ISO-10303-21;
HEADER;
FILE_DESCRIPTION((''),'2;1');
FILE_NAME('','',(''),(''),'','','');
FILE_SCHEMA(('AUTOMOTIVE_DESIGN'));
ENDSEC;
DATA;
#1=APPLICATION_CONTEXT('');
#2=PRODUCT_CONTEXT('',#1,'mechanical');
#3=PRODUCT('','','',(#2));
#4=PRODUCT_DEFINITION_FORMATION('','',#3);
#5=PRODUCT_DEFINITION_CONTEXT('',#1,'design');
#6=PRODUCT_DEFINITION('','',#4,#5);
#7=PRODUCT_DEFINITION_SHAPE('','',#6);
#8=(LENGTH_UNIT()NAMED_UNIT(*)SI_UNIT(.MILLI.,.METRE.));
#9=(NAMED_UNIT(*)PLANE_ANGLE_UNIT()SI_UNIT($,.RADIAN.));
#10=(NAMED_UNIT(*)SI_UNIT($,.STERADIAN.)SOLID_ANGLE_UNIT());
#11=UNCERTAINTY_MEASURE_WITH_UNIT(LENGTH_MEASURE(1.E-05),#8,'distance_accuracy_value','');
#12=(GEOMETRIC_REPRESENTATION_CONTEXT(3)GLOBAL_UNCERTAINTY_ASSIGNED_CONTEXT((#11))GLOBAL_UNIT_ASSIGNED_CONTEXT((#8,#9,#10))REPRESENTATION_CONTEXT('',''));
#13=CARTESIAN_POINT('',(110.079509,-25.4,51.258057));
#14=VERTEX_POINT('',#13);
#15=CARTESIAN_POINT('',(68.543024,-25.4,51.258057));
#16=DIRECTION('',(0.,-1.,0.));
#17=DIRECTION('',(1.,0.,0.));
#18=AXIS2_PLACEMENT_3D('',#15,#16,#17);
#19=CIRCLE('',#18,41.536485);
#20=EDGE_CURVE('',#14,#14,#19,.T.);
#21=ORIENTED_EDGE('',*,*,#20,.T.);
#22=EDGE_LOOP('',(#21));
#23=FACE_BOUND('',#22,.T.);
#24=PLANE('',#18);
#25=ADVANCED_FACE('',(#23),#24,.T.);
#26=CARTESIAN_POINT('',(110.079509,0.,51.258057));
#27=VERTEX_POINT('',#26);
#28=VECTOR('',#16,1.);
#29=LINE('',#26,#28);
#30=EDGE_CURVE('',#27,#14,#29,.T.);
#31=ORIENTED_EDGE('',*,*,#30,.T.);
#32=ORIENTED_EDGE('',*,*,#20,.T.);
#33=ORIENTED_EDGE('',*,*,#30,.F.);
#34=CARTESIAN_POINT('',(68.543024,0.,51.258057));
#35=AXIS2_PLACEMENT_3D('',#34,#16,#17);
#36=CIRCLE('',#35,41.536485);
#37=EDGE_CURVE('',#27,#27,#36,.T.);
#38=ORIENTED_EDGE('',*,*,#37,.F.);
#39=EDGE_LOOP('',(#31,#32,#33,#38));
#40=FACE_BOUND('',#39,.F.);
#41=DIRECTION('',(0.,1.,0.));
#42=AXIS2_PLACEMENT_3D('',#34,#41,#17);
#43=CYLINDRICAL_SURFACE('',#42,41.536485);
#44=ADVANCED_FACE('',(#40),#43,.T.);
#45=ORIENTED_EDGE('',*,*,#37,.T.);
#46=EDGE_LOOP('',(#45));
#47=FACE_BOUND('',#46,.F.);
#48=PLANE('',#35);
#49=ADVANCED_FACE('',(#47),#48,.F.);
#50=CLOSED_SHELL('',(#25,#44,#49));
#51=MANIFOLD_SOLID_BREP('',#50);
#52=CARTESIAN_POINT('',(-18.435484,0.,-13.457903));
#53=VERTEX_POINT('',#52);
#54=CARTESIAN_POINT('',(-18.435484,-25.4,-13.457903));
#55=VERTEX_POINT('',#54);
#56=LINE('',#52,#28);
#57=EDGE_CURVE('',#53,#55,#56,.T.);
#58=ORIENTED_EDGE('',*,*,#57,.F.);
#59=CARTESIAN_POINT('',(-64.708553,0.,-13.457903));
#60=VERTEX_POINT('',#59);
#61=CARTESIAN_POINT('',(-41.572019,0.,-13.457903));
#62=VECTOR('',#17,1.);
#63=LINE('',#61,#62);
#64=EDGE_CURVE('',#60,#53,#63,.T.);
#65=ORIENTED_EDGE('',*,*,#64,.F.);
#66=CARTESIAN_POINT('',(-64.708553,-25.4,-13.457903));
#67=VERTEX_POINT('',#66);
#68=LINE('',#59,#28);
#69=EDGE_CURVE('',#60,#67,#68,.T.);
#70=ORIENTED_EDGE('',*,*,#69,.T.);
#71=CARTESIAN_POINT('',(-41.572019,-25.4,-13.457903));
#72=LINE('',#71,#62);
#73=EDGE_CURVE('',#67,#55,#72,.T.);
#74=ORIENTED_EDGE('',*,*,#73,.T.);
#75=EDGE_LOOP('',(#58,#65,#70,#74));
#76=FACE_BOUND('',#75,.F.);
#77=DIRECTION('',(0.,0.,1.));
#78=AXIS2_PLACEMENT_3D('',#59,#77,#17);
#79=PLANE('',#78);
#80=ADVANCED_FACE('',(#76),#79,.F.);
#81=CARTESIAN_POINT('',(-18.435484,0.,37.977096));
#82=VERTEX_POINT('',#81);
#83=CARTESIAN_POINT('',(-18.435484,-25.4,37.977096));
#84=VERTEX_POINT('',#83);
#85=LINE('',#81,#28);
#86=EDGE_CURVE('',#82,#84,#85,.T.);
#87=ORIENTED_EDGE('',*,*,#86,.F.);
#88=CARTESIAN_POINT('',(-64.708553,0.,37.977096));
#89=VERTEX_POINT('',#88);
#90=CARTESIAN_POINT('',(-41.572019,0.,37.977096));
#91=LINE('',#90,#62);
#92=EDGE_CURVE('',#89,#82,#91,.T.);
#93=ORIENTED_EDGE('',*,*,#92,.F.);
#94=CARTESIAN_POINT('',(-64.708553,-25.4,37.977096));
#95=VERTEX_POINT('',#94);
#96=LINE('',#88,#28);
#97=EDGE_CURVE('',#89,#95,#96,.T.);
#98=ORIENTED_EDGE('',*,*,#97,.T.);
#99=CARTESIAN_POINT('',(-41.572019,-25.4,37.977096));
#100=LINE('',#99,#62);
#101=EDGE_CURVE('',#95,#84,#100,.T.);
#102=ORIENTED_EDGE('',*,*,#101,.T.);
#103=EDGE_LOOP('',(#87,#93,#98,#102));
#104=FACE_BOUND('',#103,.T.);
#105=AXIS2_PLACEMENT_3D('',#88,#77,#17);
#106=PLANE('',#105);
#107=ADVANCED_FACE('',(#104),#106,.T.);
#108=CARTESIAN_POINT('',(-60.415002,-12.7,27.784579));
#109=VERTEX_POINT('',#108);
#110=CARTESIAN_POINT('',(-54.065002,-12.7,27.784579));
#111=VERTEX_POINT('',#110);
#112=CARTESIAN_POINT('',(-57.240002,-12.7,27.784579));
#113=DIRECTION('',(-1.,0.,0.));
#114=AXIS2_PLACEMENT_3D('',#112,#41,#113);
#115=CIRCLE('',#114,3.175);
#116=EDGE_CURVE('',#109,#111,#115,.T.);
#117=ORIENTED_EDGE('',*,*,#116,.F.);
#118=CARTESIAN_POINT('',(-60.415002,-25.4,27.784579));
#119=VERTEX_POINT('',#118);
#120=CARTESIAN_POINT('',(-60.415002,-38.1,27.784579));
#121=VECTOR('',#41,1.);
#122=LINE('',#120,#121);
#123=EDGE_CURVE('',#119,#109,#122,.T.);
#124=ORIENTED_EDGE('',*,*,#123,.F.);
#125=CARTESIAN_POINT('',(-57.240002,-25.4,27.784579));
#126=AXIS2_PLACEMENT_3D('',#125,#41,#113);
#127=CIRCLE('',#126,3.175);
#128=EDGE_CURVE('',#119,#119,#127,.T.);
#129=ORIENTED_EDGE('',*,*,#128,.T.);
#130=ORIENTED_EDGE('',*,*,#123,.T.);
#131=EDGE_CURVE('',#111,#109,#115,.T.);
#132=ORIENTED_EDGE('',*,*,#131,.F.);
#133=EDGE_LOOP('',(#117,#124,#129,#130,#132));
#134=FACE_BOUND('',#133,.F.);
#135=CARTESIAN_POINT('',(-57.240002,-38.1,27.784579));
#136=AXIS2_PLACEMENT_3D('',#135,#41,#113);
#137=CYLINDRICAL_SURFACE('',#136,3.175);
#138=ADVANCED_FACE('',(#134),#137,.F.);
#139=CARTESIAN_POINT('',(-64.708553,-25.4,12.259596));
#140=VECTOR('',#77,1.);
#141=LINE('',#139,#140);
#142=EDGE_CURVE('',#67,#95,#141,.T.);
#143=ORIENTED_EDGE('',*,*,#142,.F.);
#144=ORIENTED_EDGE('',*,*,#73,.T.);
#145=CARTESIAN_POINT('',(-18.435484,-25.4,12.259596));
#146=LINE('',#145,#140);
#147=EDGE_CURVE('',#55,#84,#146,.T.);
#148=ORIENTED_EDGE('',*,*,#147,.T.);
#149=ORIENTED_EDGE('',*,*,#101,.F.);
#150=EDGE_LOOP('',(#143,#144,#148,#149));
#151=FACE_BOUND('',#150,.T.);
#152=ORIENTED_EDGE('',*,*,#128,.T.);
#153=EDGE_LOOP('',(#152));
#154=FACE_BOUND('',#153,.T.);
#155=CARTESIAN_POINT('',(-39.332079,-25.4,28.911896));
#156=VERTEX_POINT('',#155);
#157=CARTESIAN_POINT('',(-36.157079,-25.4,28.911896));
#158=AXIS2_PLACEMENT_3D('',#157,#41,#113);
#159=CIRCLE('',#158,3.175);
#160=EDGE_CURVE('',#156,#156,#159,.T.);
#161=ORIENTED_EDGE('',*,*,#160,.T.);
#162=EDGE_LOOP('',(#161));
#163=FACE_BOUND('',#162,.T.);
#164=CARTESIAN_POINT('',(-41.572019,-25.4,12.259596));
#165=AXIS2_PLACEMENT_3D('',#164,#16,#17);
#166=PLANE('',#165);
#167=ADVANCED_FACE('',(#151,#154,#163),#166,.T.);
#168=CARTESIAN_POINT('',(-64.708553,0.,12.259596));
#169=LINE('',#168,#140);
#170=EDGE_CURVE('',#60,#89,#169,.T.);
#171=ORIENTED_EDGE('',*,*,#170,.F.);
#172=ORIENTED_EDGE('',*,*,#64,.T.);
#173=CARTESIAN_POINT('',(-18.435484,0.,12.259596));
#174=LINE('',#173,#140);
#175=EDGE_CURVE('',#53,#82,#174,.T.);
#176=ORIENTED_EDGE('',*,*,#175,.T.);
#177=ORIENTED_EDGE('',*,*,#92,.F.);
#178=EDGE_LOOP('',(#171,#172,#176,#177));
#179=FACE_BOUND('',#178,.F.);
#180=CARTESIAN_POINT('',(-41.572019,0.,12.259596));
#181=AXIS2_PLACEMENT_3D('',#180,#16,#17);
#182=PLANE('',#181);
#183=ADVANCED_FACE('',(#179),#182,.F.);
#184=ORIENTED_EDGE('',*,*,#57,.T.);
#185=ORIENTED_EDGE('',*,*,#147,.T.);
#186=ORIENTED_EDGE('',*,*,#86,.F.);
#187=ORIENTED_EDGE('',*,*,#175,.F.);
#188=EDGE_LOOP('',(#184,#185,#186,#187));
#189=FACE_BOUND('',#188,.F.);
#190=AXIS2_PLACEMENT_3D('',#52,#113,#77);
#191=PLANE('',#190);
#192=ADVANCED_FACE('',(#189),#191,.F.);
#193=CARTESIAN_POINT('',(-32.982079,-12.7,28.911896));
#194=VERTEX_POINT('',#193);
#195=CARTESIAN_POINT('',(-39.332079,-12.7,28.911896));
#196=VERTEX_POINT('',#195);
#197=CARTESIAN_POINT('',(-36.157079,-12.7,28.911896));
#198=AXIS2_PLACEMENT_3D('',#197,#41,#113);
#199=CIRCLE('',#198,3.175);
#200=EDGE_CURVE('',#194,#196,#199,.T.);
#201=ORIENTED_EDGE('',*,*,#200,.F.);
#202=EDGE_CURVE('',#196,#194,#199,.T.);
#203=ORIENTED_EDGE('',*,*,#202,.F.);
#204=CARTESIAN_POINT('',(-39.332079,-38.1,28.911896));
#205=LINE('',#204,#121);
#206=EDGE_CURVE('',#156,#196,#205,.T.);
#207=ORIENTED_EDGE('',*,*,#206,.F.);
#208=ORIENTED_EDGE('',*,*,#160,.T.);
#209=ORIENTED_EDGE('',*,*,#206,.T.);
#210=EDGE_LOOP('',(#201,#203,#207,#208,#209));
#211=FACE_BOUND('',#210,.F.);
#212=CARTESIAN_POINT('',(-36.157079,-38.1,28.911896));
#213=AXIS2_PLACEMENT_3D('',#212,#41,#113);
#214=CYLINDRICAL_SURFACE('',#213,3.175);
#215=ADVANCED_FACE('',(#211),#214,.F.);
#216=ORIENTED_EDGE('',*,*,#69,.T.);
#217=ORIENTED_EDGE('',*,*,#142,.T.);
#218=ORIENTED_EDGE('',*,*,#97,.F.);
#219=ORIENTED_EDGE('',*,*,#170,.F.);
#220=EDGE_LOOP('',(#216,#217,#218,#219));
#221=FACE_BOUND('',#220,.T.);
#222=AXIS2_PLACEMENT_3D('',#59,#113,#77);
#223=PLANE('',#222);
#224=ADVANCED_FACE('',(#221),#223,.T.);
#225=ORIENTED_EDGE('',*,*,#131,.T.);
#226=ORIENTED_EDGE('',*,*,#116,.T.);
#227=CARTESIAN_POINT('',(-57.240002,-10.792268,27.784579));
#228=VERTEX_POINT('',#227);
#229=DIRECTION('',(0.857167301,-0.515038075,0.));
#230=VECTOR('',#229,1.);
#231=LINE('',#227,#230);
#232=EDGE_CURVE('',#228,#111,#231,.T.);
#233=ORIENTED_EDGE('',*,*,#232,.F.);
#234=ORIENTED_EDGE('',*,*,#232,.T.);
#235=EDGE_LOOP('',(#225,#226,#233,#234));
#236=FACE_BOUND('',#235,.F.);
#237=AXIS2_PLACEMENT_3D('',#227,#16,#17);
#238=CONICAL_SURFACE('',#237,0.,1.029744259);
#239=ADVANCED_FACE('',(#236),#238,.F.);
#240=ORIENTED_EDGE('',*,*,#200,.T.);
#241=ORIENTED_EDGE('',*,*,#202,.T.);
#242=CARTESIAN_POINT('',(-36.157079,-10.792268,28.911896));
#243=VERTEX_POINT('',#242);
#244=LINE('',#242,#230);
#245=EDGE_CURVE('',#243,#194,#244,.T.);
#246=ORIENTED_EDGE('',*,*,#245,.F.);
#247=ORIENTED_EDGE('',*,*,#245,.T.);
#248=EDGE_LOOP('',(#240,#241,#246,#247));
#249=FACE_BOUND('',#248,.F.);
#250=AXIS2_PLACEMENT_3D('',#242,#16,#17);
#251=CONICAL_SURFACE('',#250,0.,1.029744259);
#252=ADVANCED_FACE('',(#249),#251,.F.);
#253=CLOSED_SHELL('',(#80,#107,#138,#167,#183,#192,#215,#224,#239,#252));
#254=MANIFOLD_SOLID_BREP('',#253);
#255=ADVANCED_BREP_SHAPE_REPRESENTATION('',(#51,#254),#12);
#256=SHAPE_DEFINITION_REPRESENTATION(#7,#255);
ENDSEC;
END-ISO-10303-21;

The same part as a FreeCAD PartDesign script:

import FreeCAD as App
import Part
import Sketcher
Q = App.Units.Quantity


def add_polygon(sketch, points):
    """Adds a closed chain of lines whose ends are joined by coincident constraints."""
    first, n = sketch.GeometryCount, len(points)
    for a, b in zip(points, points[1:] + points[:1]):
        sketch.addGeometry(Part.LineSegment(App.Vector(*a, 0), App.Vector(*b, 0)), False)
    for i in range(n):
        sketch.addConstraint(Sketcher.Constraint("Coincident", first + i, 2, first + (i + 1) % n, 1))

doc = App.newDocument("Part")
body = doc.addObject("PartDesign::Body", "Body")

# Sketch on XZ plane
sketch1 = doc.addObject("Sketcher::SketchObject", "Sketch")
body.addObject(sketch1)
sketch1.AttachmentSupport = (doc.XZ_Plane, [""])
sketch1.MapMode = "FlatFace"
add_polygon(sketch1, [(-65, 38), (-65, -13), (-18, -13), (-18, 38)])  # lines 0-3
sketch1.addConstraint(Sketcher.Constraint("Vertical", 0))
sketch1.addConstraint(Sketcher.Constraint("Horizontal", 1))
sketch1.addConstraint(Sketcher.Constraint("Vertical", 2))
sketch1.addConstraint(Sketcher.Constraint("Horizontal", 3))
sketch1.addConstraint(Sketcher.Constraint("DistanceY", 0, 2, 0, 1, Q("2.0249999 in")))
sketch1.addConstraint(Sketcher.Constraint("DistanceX", 1, 1, 1, 2, 46.273069))
sketch1.addConstraint(Sketcher.Constraint("DistanceX", 0, 2, -1, 1, 64.708553))
sketch1.addConstraint(Sketcher.Constraint("DistanceY", 0, 2, -1, 1, 13.457903))
pad1 = doc.addObject("PartDesign::Pad", "Pad")
body.addObject(pad1)
pad1.Profile = sketch1
pad1.Length = Q("1 in")

# Sketch on XZ plane
sketch2 = doc.addObject("Sketcher::SketchObject", "Sketch001")
body.addObject(sketch2)
sketch2.AttachmentSupport = (doc.XZ_Plane, [""])
sketch2.MapMode = "FlatFace"
sketch2.AttachmentOffset = App.Placement(App.Vector(0, 0, 1 * 25.4), App.Rotation())
sketch2.addGeometry(Part.Circle(App.Vector(-57.2, 27.8, 0), App.Vector(0, 0, 1), 3.2), False)
sketch2.addGeometry(Part.Circle(App.Vector(-36.2, 28.9, 0), App.Vector(0, 0, 1), 3.2), False)
sketch2.addConstraint(Sketcher.Constraint("Equal", 0, 1))
sketch2.addConstraint(Sketcher.Constraint("Diameter", 0, Q("0.25 in")))
sketch2.addConstraint(Sketcher.Constraint("DistanceX", 0, 3, -1, 1, 57.240002))
sketch2.addConstraint(Sketcher.Constraint("DistanceY", -1, 1, 0, 3, 27.784579))
sketch2.addConstraint(Sketcher.Constraint("DistanceX", 1, 3, -1, 1, 36.157079))
sketch2.addConstraint(Sketcher.Constraint("DistanceY", -1, 1, 1, 3, 28.911896))
doc.recompute()
hole = doc.addObject("PartDesign::Hole", "Hole")
body.addObject(hole)
hole.Profile = sketch2
hole.ThreadType = "None"
hole.Diameter = Q("0.25 in")
hole.DepthType = "Dimension"
hole.Depth = Q("0.5 in")
hole.DrillPoint = "Angled"
hole.DrillPointAngle = 118
body2 = doc.addObject("PartDesign::Body", "Body001")

# Sketch on XZ plane
sketch3 = doc.addObject("Sketcher::SketchObject", "Sketch002")
body2.addObject(sketch3)
sketch3.AttachmentSupport = (doc.getObject("XZ_Plane001"), [""])
sketch3.MapMode = "FlatFace"
sketch3.addGeometry(Part.Circle(App.Vector(69, 51, 0), App.Vector(0, 0, 1), 42), False)
sketch3.addConstraint(Sketcher.Constraint("Diameter", 0, 83.07297))
sketch3.addConstraint(Sketcher.Constraint("DistanceX", -1, 1, 0, 3, 68.543024))
sketch3.addConstraint(Sketcher.Constraint("DistanceY", -1, 1, 0, 3, 51.258057))
pad2 = doc.addObject("PartDesign::Pad", "Pad001")
body2.addObject(pad2)
pad2.Profile = sketch3
pad2.Length = Q("1 in")

doc.recompute()
